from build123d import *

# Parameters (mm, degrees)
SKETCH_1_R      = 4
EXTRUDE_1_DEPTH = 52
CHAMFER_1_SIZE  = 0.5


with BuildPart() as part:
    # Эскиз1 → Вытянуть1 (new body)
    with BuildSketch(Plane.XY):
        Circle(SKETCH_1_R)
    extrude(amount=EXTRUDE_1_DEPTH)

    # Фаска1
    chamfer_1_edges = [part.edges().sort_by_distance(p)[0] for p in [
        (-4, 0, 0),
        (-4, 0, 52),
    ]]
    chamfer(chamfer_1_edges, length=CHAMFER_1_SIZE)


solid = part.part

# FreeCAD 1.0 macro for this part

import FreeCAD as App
import Part
import Sketcher
from FreeCAD import Vector


def edges_at(feature, points):
    """Names of the edges that pass closest to the given points."""
    edges = feature.Shape.Edges
    near = lambda p: min(range(len(edges)), key=lambda i: edges[i].distToShape(Part.Vertex(*p))[0])
    return sorted({f"Edge{near(p) + 1}" for p in points})

doc = App.newDocument("Part")
body = doc.addObject("PartDesign::Body", "Body")

# Sketch on XY plane
sketch1 = doc.addObject("Sketcher::SketchObject", "Sketch")
body.addObject(sketch1)
sketch1.AttachmentSupport = (doc.XY_Plane, [""])
sketch1.MapMode = "FlatFace"
sketch1.addGeometry(Part.Circle(Vector(0, 0, 0), Vector(0, 0, 1), 4), False)
sketch1.addConstraint([
    Sketcher.Constraint("Coincident", 0, 3, -1, 1),
    Sketcher.Constraint("Diameter", 0, 8.0),
])
pad1 = doc.addObject("PartDesign::Pad", "Pad")
body.addObject(pad1)
pad1.Profile = sketch1
pad1.Length = 52
doc.recompute()

chamfer = doc.addObject("PartDesign::Chamfer", "Chamfer")
body.addObject(chamfer)
chamfer.Base = (pad1, edges_at(pad1, [(-4, 0, 0), (-4, 0, 52)]))
chamfer.Size = 0.5

doc.recompute()
